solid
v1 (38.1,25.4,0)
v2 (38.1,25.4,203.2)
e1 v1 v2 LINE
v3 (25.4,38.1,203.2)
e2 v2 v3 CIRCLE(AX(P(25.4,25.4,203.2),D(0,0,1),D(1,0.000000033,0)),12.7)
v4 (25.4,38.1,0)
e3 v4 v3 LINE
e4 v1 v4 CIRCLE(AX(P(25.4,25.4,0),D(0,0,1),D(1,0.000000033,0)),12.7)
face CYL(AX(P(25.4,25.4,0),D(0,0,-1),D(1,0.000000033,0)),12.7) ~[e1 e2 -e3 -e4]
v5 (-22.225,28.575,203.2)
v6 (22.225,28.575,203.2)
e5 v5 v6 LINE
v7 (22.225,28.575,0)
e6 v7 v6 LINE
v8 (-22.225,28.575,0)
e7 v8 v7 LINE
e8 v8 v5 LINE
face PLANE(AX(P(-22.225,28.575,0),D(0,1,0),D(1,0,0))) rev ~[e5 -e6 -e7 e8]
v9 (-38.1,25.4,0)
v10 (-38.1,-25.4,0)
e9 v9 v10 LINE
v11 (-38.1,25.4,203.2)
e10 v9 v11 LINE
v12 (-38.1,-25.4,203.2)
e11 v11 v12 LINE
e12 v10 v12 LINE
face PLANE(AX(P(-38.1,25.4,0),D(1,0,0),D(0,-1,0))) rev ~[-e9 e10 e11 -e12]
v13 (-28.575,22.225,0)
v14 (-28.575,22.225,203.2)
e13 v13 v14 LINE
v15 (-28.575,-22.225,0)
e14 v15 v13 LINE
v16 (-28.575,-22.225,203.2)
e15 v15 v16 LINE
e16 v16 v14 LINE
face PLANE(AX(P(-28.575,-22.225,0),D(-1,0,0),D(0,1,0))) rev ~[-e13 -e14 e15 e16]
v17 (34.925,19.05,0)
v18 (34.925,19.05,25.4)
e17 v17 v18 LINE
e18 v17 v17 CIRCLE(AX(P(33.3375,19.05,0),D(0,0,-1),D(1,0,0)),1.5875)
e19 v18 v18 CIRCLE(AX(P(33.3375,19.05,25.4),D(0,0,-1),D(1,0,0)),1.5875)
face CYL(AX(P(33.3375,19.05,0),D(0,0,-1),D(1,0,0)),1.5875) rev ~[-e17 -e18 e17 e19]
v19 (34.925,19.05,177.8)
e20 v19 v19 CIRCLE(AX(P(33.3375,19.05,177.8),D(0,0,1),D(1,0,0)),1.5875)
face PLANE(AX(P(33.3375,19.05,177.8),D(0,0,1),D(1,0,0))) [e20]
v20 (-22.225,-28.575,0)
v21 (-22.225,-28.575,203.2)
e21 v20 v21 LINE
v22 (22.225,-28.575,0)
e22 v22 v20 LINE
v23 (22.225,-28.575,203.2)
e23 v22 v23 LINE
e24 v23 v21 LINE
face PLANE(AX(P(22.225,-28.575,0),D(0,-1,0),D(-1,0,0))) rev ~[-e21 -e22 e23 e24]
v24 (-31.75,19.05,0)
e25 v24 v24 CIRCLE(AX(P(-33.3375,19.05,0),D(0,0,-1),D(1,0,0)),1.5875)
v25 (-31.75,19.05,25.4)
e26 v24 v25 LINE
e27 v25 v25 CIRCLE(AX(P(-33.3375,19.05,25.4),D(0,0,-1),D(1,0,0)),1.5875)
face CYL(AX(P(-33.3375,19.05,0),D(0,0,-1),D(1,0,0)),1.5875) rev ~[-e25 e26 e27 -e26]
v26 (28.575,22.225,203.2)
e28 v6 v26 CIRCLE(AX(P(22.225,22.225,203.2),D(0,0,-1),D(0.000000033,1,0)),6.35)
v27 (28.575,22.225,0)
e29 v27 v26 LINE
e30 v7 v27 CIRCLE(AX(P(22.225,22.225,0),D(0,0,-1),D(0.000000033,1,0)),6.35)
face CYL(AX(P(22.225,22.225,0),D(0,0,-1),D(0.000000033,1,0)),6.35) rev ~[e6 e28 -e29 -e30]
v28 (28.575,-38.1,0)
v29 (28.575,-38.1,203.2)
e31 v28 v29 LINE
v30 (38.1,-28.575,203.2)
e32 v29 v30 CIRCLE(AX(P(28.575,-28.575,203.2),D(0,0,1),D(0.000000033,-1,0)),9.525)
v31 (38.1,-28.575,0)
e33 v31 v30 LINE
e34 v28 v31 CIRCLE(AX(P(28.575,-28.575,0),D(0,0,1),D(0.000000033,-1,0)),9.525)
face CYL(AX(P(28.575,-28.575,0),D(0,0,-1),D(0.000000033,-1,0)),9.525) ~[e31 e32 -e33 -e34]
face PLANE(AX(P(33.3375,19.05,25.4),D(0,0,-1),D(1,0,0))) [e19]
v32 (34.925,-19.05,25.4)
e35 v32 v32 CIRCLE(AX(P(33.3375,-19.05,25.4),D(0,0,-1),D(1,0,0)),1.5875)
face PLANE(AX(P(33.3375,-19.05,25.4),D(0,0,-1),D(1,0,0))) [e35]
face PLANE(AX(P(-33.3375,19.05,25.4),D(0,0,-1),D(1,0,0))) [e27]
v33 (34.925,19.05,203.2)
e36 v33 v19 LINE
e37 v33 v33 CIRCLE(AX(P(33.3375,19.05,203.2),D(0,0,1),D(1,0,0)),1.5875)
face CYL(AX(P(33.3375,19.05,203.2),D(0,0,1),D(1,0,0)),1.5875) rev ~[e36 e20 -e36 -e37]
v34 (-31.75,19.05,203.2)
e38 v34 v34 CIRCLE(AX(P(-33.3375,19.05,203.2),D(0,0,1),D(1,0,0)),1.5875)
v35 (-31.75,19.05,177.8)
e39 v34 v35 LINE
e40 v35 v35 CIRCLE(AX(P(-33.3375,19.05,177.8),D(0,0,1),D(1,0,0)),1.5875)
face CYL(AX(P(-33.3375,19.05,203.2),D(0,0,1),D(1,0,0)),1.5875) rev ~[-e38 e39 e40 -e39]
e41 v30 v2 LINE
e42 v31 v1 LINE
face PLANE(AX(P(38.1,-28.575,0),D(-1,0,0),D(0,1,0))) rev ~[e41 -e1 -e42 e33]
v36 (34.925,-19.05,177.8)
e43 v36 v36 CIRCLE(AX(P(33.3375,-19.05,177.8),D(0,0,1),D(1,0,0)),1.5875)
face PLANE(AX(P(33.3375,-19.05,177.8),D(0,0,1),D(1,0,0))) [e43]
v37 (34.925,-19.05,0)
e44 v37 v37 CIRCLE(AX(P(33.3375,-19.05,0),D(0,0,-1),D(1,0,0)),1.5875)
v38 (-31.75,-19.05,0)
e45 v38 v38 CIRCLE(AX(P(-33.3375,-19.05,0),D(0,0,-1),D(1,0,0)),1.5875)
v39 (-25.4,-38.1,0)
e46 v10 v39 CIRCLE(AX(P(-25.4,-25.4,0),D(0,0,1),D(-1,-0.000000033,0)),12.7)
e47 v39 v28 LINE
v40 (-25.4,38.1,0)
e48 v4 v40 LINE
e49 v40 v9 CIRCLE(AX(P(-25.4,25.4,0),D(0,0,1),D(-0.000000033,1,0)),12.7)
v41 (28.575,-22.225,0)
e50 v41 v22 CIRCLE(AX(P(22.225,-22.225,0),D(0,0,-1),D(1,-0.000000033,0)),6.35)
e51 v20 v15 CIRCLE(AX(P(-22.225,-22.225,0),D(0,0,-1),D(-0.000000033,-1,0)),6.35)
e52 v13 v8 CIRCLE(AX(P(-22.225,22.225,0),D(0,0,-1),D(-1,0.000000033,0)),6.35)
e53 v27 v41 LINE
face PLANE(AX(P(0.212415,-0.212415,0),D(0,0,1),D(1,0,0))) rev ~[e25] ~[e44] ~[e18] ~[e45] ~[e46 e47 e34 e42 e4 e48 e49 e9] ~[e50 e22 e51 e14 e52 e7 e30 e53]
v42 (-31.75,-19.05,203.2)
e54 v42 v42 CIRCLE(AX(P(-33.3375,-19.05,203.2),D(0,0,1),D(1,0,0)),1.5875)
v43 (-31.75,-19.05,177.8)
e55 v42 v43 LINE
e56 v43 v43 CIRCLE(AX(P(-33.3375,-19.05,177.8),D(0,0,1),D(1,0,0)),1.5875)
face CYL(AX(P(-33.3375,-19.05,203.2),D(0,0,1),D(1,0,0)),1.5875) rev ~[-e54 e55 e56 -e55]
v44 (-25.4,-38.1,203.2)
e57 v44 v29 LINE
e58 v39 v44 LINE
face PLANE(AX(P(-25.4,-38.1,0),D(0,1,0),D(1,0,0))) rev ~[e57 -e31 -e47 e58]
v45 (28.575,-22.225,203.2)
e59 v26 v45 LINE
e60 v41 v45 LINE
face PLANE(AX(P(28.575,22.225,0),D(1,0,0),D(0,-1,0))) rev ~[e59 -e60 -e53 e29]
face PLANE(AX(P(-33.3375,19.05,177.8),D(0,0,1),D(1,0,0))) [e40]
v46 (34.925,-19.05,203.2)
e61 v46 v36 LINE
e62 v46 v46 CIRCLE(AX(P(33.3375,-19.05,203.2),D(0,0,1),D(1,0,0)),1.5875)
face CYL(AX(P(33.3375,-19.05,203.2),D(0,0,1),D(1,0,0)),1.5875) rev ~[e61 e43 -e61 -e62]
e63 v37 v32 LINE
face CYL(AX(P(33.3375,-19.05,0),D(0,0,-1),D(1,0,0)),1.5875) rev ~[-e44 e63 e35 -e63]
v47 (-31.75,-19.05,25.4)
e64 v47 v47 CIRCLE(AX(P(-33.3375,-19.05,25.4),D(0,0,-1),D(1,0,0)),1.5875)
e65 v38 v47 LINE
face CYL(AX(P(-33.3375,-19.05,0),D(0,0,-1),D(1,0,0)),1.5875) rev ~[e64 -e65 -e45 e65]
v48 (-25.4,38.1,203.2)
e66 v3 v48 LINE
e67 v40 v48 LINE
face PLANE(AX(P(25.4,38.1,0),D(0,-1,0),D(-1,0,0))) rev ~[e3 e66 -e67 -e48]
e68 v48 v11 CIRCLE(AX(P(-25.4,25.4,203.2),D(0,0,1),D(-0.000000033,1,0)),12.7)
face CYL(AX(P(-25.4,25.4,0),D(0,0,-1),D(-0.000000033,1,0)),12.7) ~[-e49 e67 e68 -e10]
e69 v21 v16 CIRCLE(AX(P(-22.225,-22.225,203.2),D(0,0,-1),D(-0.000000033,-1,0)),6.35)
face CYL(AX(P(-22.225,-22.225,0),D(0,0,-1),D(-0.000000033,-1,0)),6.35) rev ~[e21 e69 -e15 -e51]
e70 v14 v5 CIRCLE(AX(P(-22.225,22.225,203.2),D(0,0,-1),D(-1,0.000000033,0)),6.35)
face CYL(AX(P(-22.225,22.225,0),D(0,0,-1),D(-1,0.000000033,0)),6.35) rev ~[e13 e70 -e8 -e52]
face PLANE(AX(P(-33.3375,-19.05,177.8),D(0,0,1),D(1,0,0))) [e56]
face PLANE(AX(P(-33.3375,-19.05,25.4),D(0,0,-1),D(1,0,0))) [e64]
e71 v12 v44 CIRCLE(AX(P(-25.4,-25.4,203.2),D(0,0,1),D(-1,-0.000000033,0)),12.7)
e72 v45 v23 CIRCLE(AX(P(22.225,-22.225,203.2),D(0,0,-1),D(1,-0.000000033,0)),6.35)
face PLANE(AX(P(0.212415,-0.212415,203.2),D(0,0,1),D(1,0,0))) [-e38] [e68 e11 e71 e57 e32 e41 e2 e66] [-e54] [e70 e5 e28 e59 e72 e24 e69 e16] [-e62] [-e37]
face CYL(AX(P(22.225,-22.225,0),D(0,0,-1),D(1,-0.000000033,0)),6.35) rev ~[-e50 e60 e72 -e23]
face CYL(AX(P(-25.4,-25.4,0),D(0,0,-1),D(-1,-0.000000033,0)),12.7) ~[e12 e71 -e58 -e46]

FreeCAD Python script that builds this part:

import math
import FreeCAD as App
import Part
import Sketcher

V = App.Vector
Q = App.Units.Quantity

doc = App.newDocument("Part")
body = doc.addObject("PartDesign::Body", "Body")

# Sketch on XY plane
sketch1 = body.newObject("Sketcher::SketchObject", "Sketch")
sketch1.AttachmentSupport = (doc.getObject("XY_Plane"), [""])
sketch1.MapMode = "FlatFace"
sketch1.addGeometry([
    Part.LineSegment(V(-25.4, -38.1, 0), V(28.575, -38.1, 0)),  # 0
    Part.ArcOfCircle(Part.Circle(V(28.575, -28.575, 0), V(0, 0, 1), 9.525), math.radians(-89.999998), math.radians(-0.000002)),  # 1
    Part.LineSegment(V(38.1, -28.575, 0), V(38.1, 25.4, 0)),  # 2
    Part.ArcOfCircle(Part.Circle(V(25.4, 25.4, 0), V(0, 0, 1), 12.7), math.radians(0.000002), math.radians(89.999998)),  # 3
    Part.LineSegment(V(25.4, 38.1, 0), V(-25.4, 38.1, 0)),  # 4
    Part.ArcOfCircle(Part.Circle(V(-25.4, 25.4, 0), V(0, 0, 1), 12.7), math.radians(90.000002), math.radians(179.999998)),  # 5
    Part.LineSegment(V(-38.1, 25.4, 0), V(-38.1, -25.4, 0)),  # 6
    Part.ArcOfCircle(Part.Circle(V(-25.4, -25.4, 0), V(0, 0, 1), 12.7), math.radians(-179.999998), math.radians(-90.000002)),  # 7
    Part.LineSegment(V(28.575, 22.225, 0), V(28.575, -22.225, 0)),  # 8
    Part.ArcOfCircle(Part.Circle(V(22.225, -22.225, 0), V(0, 0, 1), 6.35), math.radians(-89.999998), math.radians(-0.000002)),  # 9
    Part.LineSegment(V(22.225, -28.575, 0), V(-22.225, -28.575, 0)),  # 10
    Part.ArcOfCircle(Part.Circle(V(-22.225, -22.225, 0), V(0, 0, 1), 6.35), math.radians(-179.999998), math.radians(-90.000002)),  # 11
    Part.LineSegment(V(-28.575, -22.225, 0), V(-28.575, 22.225, 0)),  # 12
    Part.ArcOfCircle(Part.Circle(V(-22.225, 22.225, 0), V(0, 0, 1), 6.35), math.radians(90.000002), math.radians(179.999998)),  # 13
    Part.LineSegment(V(-22.225, 28.575, 0), V(22.225, 28.575, 0)),  # 14
    Part.ArcOfCircle(Part.Circle(V(22.225, 22.225, 0), V(0, 0, 1), 6.35), math.radians(0.000002), math.radians(89.999998)),  # 15
], False)
sketch1.addConstraint([
    Sketcher.Constraint("Tangent", 0, 2, 1, 1),
    Sketcher.Constraint("Tangent", 1, 2, 2, 1),
    Sketcher.Constraint("Tangent", 2, 2, 3, 1),
    Sketcher.Constraint("Tangent", 3, 2, 4, 1),
    Sketcher.Constraint("Tangent", 4, 2, 5, 1),
    Sketcher.Constraint("Tangent", 5, 2, 6, 1),
    Sketcher.Constraint("Tangent", 6, 2, 7, 1),
    Sketcher.Constraint("Tangent", 7, 2, 0, 1),
    Sketcher.Constraint("Tangent", 8, 2, 9, 2),
    Sketcher.Constraint("Tangent", 9, 1, 10, 1),
    Sketcher.Constraint("Tangent", 10, 2, 11, 2),
    Sketcher.Constraint("Tangent", 11, 1, 12, 1),
    Sketcher.Constraint("Tangent", 12, 2, 13, 2),
    Sketcher.Constraint("Tangent", 13, 1, 14, 1),
    Sketcher.Constraint("Tangent", 14, 2, 15, 2),
    Sketcher.Constraint("Tangent", 15, 1, 8, 1),
    Sketcher.Constraint("Horizontal", 0),
    Sketcher.Constraint("Vertical", 2),
    Sketcher.Constraint("Horizontal", 4),
    Sketcher.Constraint("Vertical", 6),
    Sketcher.Constraint("Vertical", 8),
    Sketcher.Constraint("Horizontal", 10),
    Sketcher.Constraint("Vertical", 12),
    Sketcher.Constraint("Horizontal", 14),
    Sketcher.Constraint("Equal", 3, 5),
    Sketcher.Constraint("Equal", 5, 7),
    Sketcher.Constraint("Equal", 9, 11),
    Sketcher.Constraint("Equal", 11, 13),
    Sketcher.Constraint("Equal", 13, 15),
    Sketcher.Constraint("Symmetric", 3, 3, 7, 3, -1, 1),
    Sketcher.Constraint("Symmetric", 9, 3, 13, 3, -1, 1),
    Sketcher.Constraint("Horizontal", 1, 2, 9, 1),
    Sketcher.Constraint("Vertical", 0, 2, 8, 2),
    Sketcher.Constraint("Equal", 0, 2),
    Sketcher.Constraint("Radius", 3, Q("0.5 in")),
    Sketcher.Constraint("DistanceX", 4, 2, 4, 1, Q("2 in")),
    Sketcher.Constraint("Radius", 9, Q("0.25 in")),
    Sketcher.Constraint("Radius", 1, Q("0.375 in")),
])
pad1 = body.newObject("PartDesign::Pad", "Pad")
pad1.Profile = sketch1
pad1.Length = Q("8 in")

# Sketch on XY plane
sketch2 = body.newObject("Sketcher::SketchObject", "Sketch001")
sketch2.AttachmentSupport = (doc.getObject("XY_Plane"), [""])
sketch2.MapMode = "FlatFace"
sketch2.AttachmentOffset = App.Placement(V(0, 0, 8 * 25.4), App.Rotation())
sketch2.addGeometry([
    Part.Circle(V(-33.3375, 19.05, 0), V(0, 0, 1), 1.5875),
    Part.Circle(V(-33.3375, -19.05, 0), V(0, 0, 1), 1.5875),
    Part.Circle(V(33.3375, -19.05, 0), V(0, 0, 1), 1.5875),
    Part.Circle(V(33.3375, 19.05, 0), V(0, 0, 1), 1.5875),
], False)
sketch2.addConstraint([
    Sketcher.Constraint("Equal", 0, 1),
    Sketcher.Constraint("Equal", 1, 2),
    Sketcher.Constraint("Equal", 2, 3),
    Sketcher.Constraint("Symmetric", 0, 3, 2, 3, -1, 1),
    Sketcher.Constraint("Symmetric", 1, 3, 3, 3, -1, 1),
    Sketcher.Constraint("Symmetric", 1, 3, 2, 3, -2),
    Sketcher.Constraint("Diameter", 0, Q("0.125 in")),
    Sketcher.Constraint("DistanceY", 1, 3, 0, 3, Q("1.5 in")),
    Sketcher.Constraint("DistanceX", 0, 3, -1, 1, Q("1.3125 in")),
])
pocket1 = body.newObject("PartDesign::Pocket", "Pocket")
pocket1.Profile = sketch2
pocket1.Length = Q("1 in")

# Sketch on XY plane
sketch3 = body.newObject("Sketcher::SketchObject", "Sketch002")
sketch3.AttachmentSupport = (doc.getObject("XY_Plane"), [""])
sketch3.MapMode = "FlatFace"
sketch3.addGeometry([
    Part.Circle(V(-33.3375, -19.05, 0), V(0, 0, 1), 1.5875),
    Part.Circle(V(-33.3375, 19.05, 0), V(0, 0, 1), 1.5875),
    Part.Circle(V(33.3375, -19.05, 0), V(0, 0, 1), 1.5875),
    Part.Circle(V(33.3375, 19.05, 0), V(0, 0, 1), 1.5875),
], False)
sketch3.addConstraint([
    Sketcher.Constraint("Equal", 0, 1),
    Sketcher.Constraint("Equal", 1, 2),
    Sketcher.Constraint("Equal", 2, 3),
    Sketcher.Constraint("Symmetric", 1, 3, 2, 3, -1, 1),
    Sketcher.Constraint("Symmetric", 0, 3, 3, 3, -1, 1),
    Sketcher.Constraint("Symmetric", 0, 3, 2, 3, -2),
    Sketcher.Constraint("Diameter", 0, Q("0.125 in")),
    Sketcher.Constraint("DistanceY", 0, 3, 1, 3, Q("1.5 in")),
    Sketcher.Constraint("DistanceX", 0, 3, -1, 1, Q("1.3125 in")),
])
pocket2 = body.newObject("PartDesign::Pocket", "Pocket001")
pocket2.Profile = sketch3
pocket2.Length = Q("1 in")
pocket2.Reversed = True

doc.recompute()
